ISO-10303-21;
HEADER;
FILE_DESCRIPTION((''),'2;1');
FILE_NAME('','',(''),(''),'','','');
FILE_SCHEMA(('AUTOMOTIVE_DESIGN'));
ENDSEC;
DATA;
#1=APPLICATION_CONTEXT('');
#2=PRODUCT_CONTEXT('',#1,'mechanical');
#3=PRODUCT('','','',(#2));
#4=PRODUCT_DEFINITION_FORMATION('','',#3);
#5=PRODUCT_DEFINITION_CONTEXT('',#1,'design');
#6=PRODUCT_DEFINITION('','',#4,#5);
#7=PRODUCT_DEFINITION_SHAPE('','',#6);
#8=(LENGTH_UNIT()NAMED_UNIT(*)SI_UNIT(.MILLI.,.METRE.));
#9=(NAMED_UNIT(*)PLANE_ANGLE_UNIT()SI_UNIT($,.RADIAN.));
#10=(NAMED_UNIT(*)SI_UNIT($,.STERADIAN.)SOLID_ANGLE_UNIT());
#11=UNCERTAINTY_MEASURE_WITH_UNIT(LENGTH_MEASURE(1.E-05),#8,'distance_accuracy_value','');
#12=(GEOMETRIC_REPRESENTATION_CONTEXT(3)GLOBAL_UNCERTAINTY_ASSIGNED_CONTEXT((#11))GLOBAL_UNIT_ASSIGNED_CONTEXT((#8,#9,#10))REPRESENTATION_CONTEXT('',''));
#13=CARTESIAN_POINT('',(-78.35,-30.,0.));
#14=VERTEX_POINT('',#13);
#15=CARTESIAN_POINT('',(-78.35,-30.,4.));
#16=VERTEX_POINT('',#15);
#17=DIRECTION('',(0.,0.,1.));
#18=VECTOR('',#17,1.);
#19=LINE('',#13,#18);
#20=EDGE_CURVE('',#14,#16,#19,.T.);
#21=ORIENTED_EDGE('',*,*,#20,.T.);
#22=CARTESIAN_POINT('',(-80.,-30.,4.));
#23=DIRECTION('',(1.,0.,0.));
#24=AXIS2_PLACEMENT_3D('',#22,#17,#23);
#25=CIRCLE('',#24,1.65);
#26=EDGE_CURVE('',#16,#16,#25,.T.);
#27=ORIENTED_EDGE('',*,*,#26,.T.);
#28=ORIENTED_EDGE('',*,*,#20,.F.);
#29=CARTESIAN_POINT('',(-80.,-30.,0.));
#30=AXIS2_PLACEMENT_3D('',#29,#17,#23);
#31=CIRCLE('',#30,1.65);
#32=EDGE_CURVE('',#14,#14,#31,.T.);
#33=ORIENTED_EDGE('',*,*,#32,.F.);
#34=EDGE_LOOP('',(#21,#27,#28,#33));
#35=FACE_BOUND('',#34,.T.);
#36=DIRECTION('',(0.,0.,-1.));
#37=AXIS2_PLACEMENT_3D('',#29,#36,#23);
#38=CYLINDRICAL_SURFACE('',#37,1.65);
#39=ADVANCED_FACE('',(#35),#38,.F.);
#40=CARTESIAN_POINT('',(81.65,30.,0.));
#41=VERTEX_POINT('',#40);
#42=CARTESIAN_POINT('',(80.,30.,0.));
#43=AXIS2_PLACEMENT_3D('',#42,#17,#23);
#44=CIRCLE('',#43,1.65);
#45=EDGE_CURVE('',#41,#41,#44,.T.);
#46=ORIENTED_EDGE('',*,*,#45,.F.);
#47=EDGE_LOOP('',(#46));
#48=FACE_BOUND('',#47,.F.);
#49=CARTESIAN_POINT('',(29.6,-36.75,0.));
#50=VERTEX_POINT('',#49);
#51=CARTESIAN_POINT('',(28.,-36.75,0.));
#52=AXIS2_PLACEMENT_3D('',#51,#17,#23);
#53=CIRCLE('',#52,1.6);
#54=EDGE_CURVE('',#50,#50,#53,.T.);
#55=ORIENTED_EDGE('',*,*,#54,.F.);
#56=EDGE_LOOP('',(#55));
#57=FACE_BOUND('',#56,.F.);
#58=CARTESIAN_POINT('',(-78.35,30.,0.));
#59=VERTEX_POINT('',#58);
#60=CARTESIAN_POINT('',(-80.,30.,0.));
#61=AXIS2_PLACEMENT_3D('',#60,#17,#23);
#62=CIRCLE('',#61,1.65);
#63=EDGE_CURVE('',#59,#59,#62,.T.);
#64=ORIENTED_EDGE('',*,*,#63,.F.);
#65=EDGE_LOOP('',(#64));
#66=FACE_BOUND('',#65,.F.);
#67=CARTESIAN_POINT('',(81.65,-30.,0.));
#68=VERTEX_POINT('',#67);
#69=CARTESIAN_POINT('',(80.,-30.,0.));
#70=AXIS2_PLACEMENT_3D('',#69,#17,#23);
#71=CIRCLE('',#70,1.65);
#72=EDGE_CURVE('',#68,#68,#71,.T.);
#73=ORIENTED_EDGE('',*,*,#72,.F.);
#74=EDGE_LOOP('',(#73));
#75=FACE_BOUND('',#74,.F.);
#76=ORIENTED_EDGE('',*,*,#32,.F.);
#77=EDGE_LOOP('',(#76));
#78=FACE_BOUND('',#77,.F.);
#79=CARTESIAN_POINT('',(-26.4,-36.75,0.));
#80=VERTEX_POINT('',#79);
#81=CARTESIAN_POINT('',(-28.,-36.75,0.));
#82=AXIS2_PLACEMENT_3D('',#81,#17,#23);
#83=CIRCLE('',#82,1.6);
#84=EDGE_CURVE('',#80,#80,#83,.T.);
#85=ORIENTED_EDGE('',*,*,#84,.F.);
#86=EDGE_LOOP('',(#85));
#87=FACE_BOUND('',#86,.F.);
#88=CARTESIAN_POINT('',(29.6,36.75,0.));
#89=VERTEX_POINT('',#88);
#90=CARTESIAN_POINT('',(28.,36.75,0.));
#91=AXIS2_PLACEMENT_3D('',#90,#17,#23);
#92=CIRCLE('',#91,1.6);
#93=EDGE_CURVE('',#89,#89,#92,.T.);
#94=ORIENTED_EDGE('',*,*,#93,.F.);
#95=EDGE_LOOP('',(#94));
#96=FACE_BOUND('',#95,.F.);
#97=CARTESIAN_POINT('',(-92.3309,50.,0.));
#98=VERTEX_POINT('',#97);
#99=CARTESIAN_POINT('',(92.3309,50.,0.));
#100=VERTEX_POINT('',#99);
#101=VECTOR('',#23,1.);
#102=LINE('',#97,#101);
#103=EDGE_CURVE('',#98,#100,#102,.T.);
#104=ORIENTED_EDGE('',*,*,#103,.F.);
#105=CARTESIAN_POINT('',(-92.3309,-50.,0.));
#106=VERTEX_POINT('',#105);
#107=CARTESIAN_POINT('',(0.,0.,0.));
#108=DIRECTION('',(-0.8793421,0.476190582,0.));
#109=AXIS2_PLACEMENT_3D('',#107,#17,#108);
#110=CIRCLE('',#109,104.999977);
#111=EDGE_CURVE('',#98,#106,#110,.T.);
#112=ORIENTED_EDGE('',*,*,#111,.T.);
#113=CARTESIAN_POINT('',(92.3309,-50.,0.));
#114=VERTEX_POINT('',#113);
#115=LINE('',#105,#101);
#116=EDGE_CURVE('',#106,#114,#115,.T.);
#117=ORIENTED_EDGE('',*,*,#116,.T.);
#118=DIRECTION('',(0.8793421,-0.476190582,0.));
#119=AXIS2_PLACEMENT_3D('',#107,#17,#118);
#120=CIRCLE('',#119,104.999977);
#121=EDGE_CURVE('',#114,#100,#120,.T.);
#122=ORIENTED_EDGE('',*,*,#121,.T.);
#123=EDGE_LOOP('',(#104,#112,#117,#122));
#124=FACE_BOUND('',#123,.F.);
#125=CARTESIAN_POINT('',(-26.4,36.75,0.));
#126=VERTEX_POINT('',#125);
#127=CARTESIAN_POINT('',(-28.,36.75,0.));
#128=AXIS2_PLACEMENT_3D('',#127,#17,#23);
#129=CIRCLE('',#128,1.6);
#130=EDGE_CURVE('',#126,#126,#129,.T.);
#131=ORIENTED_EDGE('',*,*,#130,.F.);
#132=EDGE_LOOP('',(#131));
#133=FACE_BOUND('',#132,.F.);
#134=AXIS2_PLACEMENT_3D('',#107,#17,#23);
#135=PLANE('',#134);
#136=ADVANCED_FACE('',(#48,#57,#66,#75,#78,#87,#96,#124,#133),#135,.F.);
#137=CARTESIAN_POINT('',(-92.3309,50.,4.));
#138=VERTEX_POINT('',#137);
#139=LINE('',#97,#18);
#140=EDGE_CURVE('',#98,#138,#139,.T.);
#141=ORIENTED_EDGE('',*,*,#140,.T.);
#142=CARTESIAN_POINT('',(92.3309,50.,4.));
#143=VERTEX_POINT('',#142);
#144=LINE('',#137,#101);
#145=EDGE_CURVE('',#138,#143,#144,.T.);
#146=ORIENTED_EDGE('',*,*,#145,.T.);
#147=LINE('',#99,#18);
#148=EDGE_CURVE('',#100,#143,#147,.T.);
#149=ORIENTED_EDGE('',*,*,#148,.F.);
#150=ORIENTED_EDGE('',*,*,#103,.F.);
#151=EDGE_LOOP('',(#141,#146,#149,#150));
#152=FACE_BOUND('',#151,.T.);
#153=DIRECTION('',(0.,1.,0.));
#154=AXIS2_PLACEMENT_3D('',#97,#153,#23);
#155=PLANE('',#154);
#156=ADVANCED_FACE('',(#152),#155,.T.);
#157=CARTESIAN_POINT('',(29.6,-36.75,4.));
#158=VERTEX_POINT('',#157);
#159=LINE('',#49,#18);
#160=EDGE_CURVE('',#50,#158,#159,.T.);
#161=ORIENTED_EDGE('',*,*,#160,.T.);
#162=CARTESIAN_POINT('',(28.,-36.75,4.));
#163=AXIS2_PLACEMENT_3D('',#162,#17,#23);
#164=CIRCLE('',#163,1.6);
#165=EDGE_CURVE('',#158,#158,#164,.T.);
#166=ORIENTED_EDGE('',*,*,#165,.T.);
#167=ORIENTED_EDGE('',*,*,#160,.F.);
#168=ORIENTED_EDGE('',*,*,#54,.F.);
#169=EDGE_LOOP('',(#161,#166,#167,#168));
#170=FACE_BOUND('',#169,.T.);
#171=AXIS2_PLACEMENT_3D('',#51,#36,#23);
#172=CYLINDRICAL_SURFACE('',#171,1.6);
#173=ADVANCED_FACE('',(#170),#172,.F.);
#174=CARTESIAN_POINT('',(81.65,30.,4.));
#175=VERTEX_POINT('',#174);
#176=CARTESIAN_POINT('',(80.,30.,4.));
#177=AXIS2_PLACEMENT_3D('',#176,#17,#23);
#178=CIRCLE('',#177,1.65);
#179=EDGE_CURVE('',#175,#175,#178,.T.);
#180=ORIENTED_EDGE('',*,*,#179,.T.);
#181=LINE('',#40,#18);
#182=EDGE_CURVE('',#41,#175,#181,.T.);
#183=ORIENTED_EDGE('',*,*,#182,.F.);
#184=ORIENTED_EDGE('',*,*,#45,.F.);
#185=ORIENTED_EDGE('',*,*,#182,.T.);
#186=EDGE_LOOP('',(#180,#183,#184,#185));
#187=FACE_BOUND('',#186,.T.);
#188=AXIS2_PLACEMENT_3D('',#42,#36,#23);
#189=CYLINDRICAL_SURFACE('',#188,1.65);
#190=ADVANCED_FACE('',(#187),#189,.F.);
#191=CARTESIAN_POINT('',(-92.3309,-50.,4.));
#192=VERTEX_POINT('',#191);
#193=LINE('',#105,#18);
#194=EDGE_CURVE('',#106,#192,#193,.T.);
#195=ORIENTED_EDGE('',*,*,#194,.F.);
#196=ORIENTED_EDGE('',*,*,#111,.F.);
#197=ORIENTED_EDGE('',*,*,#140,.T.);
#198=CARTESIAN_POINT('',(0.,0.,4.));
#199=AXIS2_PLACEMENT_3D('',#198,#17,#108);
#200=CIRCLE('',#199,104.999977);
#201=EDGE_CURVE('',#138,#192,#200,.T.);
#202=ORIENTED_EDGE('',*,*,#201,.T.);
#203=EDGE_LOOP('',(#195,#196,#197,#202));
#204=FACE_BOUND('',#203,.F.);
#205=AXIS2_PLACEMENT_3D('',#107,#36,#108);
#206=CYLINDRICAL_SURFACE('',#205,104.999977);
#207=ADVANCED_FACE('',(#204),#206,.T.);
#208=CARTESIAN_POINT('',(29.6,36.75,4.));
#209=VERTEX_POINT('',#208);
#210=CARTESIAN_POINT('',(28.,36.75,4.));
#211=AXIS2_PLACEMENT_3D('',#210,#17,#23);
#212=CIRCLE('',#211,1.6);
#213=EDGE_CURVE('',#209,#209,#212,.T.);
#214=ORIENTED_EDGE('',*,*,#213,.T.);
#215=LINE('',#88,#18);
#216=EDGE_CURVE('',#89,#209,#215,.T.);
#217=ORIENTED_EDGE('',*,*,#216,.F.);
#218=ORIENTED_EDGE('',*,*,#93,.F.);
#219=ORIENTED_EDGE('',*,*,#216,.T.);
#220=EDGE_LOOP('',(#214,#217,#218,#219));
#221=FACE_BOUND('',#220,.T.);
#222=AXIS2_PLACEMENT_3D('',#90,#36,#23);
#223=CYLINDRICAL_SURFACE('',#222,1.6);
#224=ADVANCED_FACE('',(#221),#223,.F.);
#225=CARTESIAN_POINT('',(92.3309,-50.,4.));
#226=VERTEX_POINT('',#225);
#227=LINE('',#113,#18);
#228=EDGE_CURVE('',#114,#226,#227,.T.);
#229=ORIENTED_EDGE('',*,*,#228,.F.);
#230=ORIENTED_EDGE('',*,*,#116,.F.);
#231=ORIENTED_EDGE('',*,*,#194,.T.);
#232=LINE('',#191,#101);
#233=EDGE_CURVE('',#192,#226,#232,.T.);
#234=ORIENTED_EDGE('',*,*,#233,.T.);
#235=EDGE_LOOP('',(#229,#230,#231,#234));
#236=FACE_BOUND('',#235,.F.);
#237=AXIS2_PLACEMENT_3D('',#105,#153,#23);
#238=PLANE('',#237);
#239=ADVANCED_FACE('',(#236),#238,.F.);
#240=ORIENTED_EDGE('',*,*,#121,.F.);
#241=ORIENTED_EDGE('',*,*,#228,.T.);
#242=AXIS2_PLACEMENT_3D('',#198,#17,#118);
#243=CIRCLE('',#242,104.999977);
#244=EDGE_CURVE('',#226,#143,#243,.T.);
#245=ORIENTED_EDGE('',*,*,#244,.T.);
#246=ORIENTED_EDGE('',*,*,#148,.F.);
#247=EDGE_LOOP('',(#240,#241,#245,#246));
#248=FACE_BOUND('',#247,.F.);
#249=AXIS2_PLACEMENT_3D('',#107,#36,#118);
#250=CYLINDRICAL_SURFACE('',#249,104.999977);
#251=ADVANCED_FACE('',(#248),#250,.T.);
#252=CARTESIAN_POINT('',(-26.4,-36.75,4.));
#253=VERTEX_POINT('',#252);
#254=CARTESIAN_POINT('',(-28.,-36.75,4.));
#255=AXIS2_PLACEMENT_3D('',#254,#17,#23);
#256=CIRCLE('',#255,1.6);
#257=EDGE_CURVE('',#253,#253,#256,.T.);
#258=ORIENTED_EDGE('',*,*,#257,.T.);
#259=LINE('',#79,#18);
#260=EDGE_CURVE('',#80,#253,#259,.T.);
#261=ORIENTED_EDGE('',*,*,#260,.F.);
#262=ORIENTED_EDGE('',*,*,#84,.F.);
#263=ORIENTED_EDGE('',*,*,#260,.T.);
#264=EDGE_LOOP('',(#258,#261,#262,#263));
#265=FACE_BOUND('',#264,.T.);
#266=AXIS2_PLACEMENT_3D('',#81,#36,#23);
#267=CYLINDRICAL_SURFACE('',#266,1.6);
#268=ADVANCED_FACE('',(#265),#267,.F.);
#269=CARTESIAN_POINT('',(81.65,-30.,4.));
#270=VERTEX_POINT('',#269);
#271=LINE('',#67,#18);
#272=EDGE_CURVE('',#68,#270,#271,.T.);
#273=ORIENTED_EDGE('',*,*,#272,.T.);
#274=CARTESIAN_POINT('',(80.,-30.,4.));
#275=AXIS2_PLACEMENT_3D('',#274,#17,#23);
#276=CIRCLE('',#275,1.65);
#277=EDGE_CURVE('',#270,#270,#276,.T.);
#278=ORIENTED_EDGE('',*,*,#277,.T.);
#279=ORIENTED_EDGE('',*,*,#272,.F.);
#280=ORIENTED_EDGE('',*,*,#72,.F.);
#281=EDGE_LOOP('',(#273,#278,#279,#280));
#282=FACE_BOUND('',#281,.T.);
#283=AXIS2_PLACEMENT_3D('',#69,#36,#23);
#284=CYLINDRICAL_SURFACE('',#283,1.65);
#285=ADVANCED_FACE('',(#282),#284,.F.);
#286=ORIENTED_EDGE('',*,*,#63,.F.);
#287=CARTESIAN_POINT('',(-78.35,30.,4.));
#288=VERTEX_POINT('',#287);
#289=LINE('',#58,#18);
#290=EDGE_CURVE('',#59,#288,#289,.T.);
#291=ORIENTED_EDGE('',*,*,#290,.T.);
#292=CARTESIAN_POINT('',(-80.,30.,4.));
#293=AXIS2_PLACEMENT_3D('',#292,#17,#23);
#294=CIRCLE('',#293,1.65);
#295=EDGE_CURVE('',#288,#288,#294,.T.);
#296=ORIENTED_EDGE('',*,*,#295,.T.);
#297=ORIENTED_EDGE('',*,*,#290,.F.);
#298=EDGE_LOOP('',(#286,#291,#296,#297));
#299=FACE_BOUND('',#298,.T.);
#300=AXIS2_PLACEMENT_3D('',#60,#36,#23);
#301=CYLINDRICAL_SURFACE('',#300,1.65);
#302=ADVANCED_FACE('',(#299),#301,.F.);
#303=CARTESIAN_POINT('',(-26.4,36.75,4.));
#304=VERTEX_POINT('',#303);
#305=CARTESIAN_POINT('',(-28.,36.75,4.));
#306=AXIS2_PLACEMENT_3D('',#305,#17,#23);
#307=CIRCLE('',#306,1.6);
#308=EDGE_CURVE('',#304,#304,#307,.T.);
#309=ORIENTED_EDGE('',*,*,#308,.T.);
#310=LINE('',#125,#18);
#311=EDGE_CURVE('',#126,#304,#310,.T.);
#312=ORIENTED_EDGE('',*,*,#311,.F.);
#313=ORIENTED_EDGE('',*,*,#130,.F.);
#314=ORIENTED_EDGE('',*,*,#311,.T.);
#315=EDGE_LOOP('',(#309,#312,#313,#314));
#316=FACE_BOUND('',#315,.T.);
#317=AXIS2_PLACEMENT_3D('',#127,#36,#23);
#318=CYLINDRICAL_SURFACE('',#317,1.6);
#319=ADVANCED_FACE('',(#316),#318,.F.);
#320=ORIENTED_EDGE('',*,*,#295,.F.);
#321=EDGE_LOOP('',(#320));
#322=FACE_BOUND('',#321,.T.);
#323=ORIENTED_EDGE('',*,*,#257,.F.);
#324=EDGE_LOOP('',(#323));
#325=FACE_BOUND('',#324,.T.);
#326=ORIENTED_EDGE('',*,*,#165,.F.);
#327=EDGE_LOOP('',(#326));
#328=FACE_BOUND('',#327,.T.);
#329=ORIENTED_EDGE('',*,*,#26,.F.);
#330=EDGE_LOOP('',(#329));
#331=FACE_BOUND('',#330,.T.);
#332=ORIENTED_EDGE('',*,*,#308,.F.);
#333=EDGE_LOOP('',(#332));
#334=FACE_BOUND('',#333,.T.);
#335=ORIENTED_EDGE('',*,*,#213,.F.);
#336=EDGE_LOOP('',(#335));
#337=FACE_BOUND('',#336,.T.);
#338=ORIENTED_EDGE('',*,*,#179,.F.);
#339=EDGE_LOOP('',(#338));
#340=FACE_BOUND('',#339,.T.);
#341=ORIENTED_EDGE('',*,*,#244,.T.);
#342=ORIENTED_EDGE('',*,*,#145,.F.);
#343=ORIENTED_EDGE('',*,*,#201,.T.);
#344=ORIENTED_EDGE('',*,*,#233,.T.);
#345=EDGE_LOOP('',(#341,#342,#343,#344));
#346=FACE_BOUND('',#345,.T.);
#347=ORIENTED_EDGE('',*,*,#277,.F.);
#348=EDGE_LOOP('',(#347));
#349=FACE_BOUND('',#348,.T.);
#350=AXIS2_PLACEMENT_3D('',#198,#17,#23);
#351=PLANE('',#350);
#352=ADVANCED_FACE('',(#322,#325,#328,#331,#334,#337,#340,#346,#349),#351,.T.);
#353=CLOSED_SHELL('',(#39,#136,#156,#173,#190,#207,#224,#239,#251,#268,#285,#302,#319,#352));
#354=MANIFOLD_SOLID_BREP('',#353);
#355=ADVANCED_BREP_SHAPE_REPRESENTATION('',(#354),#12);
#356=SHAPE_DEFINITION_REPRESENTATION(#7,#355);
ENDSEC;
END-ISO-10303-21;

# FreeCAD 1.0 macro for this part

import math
import FreeCAD as App
import Part
import Sketcher
from FreeCAD import Vector
Q = App.Units.Quantity

doc = App.newDocument("Part")
params = doc.addObject("Spreadsheet::Sheet", "Params")
for row, (alias, value) in enumerate([
    ("sketch1_radius", "105 mm"),
    ("sketch1_diameter", "3.3 mm"),
    ("sketch1_diameter2", "3.2 mm"),
    ("pad1_length", "4 mm"),
], start=1):
    params.set(f"A{row}", alias)
    params.set(f"B{row}", "=" + value)
    params.setAlias(f"B{row}", alias)

body = doc.addObject("PartDesign::Body", "Body")

# Sketch on XY plane
sketch1 = body.newObject("Sketcher::SketchObject", "Sketch")
sketch1.AttachmentSupport = (doc.getObject("XY_Plane"), [""])
sketch1.MapMode = "FlatFace"
sketch1.addGeometry(Part.ArcOfCircle(Part.Circle(Vector(0, 0, 0), Vector(0, 0, 1), 105), math.radians(152), math.radians(208)), False)
sketch1.addGeometry(Part.LineSegment(Vector(-92.3, -50, 0), Vector(92.3, -50, 0)), False)
sketch1.addGeometry(Part.ArcOfCircle(Part.Circle(Vector(0, 0, 0), Vector(0, 0, 1), 105), math.radians(-28), math.radians(28)), False)
sketch1.addGeometry(Part.LineSegment(Vector(92.3, 50, 0), Vector(-92.3, 50, 0)), False)
sketch1.addGeometry(Part.Circle(Vector(-80, -30, 0), Vector(0, 0, 1), 1.6), False)
sketch1.addGeometry(Part.Circle(Vector(-28, -36.8, 0), Vector(0, 0, 1), 1.6), False)
sketch1.addGeometry(Part.Circle(Vector(28, -36.8, 0), Vector(0, 0, 1), 1.6), False)
sketch1.addGeometry(Part.Circle(Vector(80, -30, 0), Vector(0, 0, 1), 1.6), False)
sketch1.addGeometry(Part.Circle(Vector(-80, 30, 0), Vector(0, 0, 1), 1.6), False)
sketch1.addGeometry(Part.Circle(Vector(-28, 36.8, 0), Vector(0, 0, 1), 1.6), False)
sketch1.addGeometry(Part.Circle(Vector(28, 36.8, 0), Vector(0, 0, 1), 1.6), False)
sketch1.addGeometry(Part.Circle(Vector(80, 30, 0), Vector(0, 0, 1), 1.6), False)
sketch1.addConstraint(Sketcher.Constraint("Coincident", 0, 2, 1, 1))
sketch1.addConstraint(Sketcher.Constraint("Coincident", 1, 2, 2, 1))
sketch1.addConstraint(Sketcher.Constraint("Coincident", 2, 2, 3, 1))
sketch1.addConstraint(Sketcher.Constraint("Coincident", 3, 2, 0, 1))
sketch1.addConstraint(Sketcher.Constraint("Horizontal", 1))
sketch1.addConstraint(Sketcher.Constraint("Horizontal", 3))
sketch1.addConstraint(Sketcher.Constraint("Coincident", 0, 3, -1, 1))
sketch1.addConstraint(Sketcher.Constraint("Coincident", 2, 3, -1, 1))
sketch1.addConstraint(Sketcher.Constraint("Equal", 0, 2))
sketch1.addConstraint(Sketcher.Constraint("Equal", 5, 6))
sketch1.addConstraint(Sketcher.Constraint("Equal", 4, 7))
sketch1.addConstraint(Sketcher.Constraint("Equal", 7, 8))
sketch1.addConstraint(Sketcher.Constraint("Equal", 6, 9))
sketch1.addConstraint(Sketcher.Constraint("Equal", 9, 10))
sketch1.addConstraint(Sketcher.Constraint("Equal", 8, 11))
sketch1.addConstraint(Sketcher.Constraint("Symmetric", 7, 3, 8, 3, -1, 1))
sketch1.addConstraint(Sketcher.Constraint("Symmetric", 6, 3, 9, 3, -1, 1))
sketch1.addConstraint(Sketcher.Constraint("Symmetric", 5, 3, 10, 3, -1, 1))
sketch1.addConstraint(Sketcher.Constraint("Symmetric", 4, 3, 11, 3, -1, 1))
sketch1.addConstraint(Sketcher.Constraint("Symmetric", 5, 3, 6, 3, -2))
sketch1.addConstraint(Sketcher.Constraint("Symmetric", 4, 3, 7, 3, -2))
sketch1.addConstraint(Sketcher.Constraint("Vertical", 1, 2, 2, 2))
sketch1.addConstraint(Sketcher.Constraint("Radius", 0, Q("105 mm")))
sketch1.addConstraint(Sketcher.Constraint("Diameter", 4, Q("3.3 mm")))
sketch1.addConstraint(Sketcher.Constraint("Diameter", 5, Q("3.2 mm")))
sketch1.addConstraint(Sketcher.Constraint("DistanceX", 4, 3, -1, 1, Q("80 mm")))
sketch1.addConstraint(Sketcher.Constraint("DistanceY", 4, 3, -1, 1, Q("30 mm")))
sketch1.addConstraint(Sketcher.Constraint("DistanceY", 0, 2, -1, 1, Q("50 mm")))
sketch1.addConstraint(Sketcher.Constraint("DistanceX", 5, 3, 6, 3, Q("56 mm")))
sketch1.addConstraint(Sketcher.Constraint("DistanceY", 5, 3, 9, 3, Q("73.5 mm")))
sketch1.setExpression("Constraints[22]", "Params.sketch1_radius")
sketch1.setExpression("Constraints[23]", "Params.sketch1_diameter")
sketch1.setExpression("Constraints[24]", "Params.sketch1_diameter2")
pad1 = body.newObject("PartDesign::Pad", "Pad")
pad1.Profile = sketch1
pad1.setExpression("Length", "Params.pad1_length")

doc.recompute()
